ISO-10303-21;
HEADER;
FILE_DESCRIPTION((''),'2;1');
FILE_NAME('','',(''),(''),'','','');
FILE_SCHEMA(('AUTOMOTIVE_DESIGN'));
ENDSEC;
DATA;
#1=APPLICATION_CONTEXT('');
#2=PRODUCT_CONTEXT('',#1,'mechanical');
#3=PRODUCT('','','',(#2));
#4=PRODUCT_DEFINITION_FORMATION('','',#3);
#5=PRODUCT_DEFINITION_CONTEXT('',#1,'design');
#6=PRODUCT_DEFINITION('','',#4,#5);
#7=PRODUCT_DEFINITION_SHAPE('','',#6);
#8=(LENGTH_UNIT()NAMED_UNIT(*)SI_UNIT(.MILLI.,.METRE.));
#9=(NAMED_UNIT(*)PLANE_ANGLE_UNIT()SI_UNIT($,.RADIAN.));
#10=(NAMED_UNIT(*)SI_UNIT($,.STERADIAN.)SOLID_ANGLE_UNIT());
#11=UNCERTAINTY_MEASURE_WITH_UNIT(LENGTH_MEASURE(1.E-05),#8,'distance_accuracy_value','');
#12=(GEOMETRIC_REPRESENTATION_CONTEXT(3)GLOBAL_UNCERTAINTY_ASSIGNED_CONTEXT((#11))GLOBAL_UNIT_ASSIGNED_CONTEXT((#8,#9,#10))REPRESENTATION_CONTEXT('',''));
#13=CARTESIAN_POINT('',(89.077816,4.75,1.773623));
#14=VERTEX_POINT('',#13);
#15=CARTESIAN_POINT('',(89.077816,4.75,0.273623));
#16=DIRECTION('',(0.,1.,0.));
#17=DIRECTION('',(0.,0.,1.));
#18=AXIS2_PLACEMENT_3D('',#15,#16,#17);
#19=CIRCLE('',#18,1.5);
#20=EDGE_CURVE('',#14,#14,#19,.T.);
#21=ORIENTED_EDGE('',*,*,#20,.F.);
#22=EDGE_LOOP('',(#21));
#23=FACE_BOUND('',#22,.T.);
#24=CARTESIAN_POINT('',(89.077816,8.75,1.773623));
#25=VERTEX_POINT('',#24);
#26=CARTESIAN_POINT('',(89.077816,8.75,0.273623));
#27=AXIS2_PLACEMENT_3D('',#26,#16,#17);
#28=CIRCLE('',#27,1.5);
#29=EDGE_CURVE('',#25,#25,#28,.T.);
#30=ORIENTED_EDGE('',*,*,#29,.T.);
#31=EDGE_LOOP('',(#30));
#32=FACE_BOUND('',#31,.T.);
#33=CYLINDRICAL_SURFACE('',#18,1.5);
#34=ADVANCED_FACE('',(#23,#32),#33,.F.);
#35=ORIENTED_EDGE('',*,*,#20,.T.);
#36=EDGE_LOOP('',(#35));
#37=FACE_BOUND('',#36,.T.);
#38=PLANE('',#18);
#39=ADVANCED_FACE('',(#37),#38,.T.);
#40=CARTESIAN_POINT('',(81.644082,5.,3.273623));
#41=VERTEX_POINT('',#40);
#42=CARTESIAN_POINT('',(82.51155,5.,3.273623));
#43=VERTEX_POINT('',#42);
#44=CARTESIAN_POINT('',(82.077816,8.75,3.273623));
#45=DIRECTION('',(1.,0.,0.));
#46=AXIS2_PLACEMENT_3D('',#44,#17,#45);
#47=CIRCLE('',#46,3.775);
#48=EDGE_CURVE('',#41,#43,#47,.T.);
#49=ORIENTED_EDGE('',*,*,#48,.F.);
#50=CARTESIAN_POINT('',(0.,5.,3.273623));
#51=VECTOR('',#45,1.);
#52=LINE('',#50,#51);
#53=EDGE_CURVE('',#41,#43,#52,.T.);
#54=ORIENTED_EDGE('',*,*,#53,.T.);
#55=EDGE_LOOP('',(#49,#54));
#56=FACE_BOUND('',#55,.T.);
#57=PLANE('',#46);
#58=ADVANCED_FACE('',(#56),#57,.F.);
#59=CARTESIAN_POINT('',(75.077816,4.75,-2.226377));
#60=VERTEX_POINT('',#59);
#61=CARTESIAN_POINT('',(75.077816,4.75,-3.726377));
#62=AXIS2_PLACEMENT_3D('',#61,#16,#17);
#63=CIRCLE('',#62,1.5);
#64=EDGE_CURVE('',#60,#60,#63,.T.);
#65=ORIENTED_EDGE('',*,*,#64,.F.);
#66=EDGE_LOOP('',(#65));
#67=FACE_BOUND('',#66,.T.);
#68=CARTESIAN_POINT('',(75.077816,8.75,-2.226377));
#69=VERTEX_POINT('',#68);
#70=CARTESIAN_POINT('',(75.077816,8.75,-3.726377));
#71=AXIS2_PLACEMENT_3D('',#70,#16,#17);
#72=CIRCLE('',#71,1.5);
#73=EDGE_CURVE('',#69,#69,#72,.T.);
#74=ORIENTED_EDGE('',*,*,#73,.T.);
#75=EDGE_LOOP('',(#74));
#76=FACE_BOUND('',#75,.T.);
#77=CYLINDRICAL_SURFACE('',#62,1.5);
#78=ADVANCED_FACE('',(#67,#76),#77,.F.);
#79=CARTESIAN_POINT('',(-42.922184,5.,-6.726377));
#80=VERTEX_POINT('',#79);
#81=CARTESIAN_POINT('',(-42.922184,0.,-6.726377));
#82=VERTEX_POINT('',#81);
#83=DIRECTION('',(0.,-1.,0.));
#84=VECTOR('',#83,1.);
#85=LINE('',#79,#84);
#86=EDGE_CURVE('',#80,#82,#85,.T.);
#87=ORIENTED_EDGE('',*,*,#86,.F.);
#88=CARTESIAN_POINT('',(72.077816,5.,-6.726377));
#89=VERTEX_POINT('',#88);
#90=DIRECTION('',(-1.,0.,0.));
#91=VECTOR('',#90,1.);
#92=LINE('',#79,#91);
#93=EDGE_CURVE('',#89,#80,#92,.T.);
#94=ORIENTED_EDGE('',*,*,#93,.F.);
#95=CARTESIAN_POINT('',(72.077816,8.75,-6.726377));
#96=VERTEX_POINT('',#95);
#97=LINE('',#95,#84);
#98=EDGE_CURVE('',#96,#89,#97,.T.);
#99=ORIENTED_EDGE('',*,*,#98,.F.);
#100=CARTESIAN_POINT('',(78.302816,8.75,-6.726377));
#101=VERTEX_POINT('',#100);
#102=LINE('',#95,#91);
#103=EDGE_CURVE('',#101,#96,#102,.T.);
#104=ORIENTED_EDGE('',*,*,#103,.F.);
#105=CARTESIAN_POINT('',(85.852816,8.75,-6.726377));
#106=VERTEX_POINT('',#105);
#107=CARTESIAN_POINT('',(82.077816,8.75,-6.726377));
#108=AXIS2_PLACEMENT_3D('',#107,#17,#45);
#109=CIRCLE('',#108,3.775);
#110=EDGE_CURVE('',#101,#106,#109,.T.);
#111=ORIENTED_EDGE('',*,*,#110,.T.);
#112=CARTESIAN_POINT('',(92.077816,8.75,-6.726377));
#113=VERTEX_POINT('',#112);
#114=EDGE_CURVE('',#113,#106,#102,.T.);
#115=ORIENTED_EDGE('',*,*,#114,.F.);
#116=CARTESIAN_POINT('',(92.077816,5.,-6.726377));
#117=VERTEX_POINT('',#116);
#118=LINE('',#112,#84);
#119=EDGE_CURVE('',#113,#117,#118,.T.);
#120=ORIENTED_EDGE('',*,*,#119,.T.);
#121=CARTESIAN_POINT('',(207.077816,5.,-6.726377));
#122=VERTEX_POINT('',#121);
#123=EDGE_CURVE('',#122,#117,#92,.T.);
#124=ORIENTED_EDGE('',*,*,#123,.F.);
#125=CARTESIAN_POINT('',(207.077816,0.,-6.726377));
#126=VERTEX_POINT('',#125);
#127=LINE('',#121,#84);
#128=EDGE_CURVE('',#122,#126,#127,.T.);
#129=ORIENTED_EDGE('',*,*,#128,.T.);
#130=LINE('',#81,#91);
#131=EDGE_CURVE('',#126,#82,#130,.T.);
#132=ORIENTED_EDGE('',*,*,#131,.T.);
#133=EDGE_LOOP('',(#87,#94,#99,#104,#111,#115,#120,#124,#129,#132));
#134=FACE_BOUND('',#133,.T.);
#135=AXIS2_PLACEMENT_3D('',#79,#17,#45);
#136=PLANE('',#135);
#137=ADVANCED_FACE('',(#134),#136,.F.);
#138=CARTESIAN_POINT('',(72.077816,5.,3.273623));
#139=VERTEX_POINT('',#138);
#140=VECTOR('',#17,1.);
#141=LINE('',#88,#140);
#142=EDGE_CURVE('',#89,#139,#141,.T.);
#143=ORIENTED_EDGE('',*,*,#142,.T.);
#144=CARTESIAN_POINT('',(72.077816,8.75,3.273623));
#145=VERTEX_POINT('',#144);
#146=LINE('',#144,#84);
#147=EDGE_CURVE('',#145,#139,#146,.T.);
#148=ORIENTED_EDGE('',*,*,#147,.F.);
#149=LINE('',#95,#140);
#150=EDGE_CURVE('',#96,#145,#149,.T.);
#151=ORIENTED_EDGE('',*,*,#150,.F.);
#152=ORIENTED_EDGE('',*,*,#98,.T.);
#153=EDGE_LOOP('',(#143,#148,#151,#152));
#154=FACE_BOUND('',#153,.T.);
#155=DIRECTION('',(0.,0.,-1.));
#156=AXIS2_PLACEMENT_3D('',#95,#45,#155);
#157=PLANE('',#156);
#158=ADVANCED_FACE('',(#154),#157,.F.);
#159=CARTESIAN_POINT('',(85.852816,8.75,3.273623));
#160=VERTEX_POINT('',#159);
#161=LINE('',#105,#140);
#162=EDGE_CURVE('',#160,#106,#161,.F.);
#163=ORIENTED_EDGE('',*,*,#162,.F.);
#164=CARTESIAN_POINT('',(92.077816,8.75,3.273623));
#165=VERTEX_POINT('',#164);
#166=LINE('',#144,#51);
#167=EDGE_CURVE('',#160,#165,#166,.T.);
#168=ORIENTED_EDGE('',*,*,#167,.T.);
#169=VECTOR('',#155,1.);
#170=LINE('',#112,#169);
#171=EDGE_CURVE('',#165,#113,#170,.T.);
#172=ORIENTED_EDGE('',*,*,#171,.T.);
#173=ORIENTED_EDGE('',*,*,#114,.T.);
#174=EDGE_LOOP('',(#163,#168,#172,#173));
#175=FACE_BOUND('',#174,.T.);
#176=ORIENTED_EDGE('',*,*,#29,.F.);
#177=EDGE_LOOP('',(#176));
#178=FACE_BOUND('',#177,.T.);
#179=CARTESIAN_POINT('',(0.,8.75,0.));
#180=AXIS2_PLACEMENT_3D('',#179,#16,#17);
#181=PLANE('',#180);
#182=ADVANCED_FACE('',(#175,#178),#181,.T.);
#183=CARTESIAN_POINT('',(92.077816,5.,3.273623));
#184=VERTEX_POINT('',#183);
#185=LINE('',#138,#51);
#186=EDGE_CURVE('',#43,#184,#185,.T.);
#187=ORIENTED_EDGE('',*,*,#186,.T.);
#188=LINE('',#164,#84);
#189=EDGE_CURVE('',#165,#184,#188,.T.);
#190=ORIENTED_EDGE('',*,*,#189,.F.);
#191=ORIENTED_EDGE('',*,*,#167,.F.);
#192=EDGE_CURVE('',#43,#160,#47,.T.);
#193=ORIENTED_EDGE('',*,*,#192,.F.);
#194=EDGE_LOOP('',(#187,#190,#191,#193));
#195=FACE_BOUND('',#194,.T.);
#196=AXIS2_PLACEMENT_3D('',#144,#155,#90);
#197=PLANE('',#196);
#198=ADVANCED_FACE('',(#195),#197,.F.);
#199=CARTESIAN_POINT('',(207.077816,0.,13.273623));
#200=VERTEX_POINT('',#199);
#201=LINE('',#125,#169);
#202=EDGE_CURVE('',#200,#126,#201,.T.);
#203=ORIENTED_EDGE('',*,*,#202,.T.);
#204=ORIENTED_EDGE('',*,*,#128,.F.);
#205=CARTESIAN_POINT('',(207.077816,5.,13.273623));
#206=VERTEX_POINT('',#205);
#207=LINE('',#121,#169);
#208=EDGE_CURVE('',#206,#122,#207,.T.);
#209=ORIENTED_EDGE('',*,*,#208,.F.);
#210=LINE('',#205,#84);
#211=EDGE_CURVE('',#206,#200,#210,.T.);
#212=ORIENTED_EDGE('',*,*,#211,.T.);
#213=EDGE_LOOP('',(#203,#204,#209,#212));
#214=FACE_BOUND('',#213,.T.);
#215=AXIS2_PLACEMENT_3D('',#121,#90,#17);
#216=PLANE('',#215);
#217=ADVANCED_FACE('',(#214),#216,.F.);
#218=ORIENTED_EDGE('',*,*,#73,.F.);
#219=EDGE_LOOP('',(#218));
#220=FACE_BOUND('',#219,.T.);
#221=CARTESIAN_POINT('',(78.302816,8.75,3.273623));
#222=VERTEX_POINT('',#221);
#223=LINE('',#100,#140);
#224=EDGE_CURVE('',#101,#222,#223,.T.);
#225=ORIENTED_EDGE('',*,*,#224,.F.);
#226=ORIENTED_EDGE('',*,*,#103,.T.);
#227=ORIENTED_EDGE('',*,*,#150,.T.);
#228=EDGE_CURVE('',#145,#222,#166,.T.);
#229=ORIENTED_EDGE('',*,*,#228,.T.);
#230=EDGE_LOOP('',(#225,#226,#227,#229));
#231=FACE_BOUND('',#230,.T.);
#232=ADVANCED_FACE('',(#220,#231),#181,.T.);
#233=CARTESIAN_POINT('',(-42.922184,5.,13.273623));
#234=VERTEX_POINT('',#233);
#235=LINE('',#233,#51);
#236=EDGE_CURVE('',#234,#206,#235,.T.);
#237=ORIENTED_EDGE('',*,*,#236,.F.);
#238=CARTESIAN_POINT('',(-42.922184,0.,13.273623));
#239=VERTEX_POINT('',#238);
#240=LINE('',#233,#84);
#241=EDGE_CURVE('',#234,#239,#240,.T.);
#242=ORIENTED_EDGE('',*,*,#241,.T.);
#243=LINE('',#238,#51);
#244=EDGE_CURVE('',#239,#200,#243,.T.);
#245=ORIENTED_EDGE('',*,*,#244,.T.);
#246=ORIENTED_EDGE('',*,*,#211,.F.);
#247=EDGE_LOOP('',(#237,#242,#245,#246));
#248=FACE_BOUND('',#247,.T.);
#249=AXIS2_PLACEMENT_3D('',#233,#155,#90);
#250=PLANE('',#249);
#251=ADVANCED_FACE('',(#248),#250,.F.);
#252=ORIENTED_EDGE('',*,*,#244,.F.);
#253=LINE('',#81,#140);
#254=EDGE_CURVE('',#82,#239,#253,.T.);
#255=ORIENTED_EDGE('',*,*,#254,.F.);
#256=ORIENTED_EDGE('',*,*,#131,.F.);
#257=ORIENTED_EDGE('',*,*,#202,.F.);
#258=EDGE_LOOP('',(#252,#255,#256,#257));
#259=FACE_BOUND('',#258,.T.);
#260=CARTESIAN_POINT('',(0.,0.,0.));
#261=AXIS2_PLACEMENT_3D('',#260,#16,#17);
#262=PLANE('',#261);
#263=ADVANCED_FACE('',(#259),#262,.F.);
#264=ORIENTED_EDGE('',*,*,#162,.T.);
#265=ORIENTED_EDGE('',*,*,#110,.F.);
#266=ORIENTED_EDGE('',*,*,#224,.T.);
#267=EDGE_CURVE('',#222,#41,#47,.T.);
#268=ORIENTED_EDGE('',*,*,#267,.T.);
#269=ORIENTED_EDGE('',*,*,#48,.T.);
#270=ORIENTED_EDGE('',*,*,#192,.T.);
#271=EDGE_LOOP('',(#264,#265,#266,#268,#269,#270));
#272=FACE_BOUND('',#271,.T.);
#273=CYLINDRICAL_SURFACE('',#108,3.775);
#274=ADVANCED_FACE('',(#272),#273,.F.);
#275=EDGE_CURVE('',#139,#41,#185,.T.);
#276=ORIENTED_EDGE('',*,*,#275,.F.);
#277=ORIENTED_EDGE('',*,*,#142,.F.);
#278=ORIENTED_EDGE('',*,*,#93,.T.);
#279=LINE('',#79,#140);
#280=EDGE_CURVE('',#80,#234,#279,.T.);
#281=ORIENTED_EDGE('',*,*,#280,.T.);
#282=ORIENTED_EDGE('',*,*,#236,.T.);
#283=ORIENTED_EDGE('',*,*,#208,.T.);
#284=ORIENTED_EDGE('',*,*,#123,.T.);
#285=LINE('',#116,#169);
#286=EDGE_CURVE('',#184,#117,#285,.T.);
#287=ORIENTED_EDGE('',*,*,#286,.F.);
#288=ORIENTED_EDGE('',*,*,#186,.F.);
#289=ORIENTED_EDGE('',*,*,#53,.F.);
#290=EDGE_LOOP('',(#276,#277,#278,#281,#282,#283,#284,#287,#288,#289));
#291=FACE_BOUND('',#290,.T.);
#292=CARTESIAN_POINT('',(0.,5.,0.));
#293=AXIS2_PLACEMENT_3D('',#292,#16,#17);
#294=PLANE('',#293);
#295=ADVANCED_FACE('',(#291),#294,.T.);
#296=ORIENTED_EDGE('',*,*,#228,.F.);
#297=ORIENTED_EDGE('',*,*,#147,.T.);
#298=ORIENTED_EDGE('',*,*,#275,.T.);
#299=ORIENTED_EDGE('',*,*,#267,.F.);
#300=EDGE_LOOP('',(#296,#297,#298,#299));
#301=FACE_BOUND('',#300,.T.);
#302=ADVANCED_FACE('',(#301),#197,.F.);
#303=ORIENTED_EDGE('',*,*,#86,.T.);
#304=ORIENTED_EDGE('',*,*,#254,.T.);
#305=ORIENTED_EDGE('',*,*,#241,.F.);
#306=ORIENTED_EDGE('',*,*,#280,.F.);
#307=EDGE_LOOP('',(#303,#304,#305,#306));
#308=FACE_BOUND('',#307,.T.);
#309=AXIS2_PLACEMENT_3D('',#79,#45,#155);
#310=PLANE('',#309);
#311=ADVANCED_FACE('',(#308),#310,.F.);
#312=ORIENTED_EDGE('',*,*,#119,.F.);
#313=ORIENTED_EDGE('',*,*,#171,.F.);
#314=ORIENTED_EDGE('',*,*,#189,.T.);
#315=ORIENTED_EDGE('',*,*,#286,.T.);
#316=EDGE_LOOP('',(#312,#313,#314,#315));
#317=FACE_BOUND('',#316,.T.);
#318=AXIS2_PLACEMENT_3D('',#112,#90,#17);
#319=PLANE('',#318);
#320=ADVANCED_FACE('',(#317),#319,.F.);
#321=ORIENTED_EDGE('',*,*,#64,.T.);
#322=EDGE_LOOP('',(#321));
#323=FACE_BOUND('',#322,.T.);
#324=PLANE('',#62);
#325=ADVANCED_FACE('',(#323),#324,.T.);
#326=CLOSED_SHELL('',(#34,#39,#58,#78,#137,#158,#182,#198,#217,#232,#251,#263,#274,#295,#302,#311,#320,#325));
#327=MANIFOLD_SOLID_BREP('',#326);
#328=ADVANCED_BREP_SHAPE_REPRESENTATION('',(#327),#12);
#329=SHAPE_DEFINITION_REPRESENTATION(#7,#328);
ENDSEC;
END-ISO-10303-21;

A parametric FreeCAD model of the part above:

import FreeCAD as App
import Part
import Sketcher
from FreeCAD import Vector

doc = App.newDocument("Part")
body = doc.addObject("PartDesign::Body", "Body")

# Sketch on XZ plane
sketch1 = body.newObject("Sketcher::SketchObject", "Sketch")
sketch1.AttachmentSupport = (doc.getObject("XZ_Plane"), [""])
sketch1.MapMode = "FlatFace"
sketch1.addGeometry([
    Part.LineSegment(Vector(-43, -7, 0), Vector(-43, 13, 0)),
    Part.LineSegment(Vector(-43, 13, 0), Vector(207, 13, 0)),
    Part.LineSegment(Vector(207, 13, 0), Vector(207, -7, 0)),
    Part.LineSegment(Vector(207, -7, 0), Vector(-43, -7, 0)),
], False)
sketch1.addConstraint([
    Sketcher.Constraint("Coincident", 0, 2, 1, 1),
    Sketcher.Constraint("Coincident", 1, 2, 2, 1),
    Sketcher.Constraint("Coincident", 2, 2, 3, 1),
    Sketcher.Constraint("Coincident", 3, 2, 0, 1),
    Sketcher.Constraint("Vertical", 0),
    Sketcher.Constraint("Horizontal", 1),
    Sketcher.Constraint("Vertical", 2),
    Sketcher.Constraint("Horizontal", 3),
    Sketcher.Constraint("DistanceX", 1, 1, 1, 2, 250.0),
    Sketcher.Constraint("DistanceY", 0, 1, 0, 2, 20.0),
    Sketcher.Constraint("DistanceX", 0, 2, -1, 1, 42.922184),
    Sketcher.Constraint("DistanceY", -1, 1, 0, 2, 13.273623),
])
pad1 = body.newObject("PartDesign::Pad", "Pad")
pad1.Profile = sketch1
pad1.Length = 5
pad1.Reversed = True

# Sketch on XZ plane
sketch2 = body.newObject("Sketcher::SketchObject", "Sketch001")
sketch2.AttachmentSupport = (doc.getObject("XZ_Plane"), [""])
sketch2.MapMode = "FlatFace"
sketch2.AttachmentOffset = App.Placement(Vector(0, 0, -5), App.Rotation())
sketch2.addGeometry([
    Part.LineSegment(Vector(72, -7, 0), Vector(72, 3, 0)),
    Part.LineSegment(Vector(72, 3, 0), Vector(92, 3, 0)),
    Part.LineSegment(Vector(92, 3, 0), Vector(92, -7, 0)),
    Part.LineSegment(Vector(92, -7, 0), Vector(72, -7, 0)),
], False)
sketch2.addConstraint([
    Sketcher.Constraint("Coincident", 0, 2, 1, 1),
    Sketcher.Constraint("Coincident", 1, 2, 2, 1),
    Sketcher.Constraint("Coincident", 2, 2, 3, 1),
    Sketcher.Constraint("Coincident", 3, 2, 0, 1),
    Sketcher.Constraint("Vertical", 0),
    Sketcher.Constraint("Horizontal", 1),
    Sketcher.Constraint("Vertical", 2),
    Sketcher.Constraint("Horizontal", 3),
    Sketcher.Constraint("DistanceX", 1, 1, 1, 2, 20.0),
    Sketcher.Constraint("DistanceY", 0, 1, 0, 2, 10.0),
    Sketcher.Constraint("DistanceX", -1, 1, 0, 2, 72.077816),
    Sketcher.Constraint("DistanceY", -1, 1, 0, 2, 3.273623),
])
pad2 = body.newObject("PartDesign::Pad", "Pad001")
pad2.Profile = sketch2
pad2.Length = 3.75
pad2.Reversed = True

# Sketch on XY plane
sketch3 = body.newObject("Sketcher::SketchObject", "Sketch002")
sketch3.AttachmentSupport = (doc.getObject("XY_Plane"), [""])
sketch3.MapMode = "FlatFace"
sketch3.AttachmentOffset = App.Placement(Vector(0, 0, 3.273623), App.Rotation())
sketch3.addGeometry(Part.Circle(Vector(82.1, 8.8, 0), Vector(0, 0, 1), 3.8), False)
sketch3.addConstraint([
    Sketcher.Constraint("Diameter", 0, 7.55),
    Sketcher.Constraint("DistanceY", -1, 1, 0, 3, 8.75),
    Sketcher.Constraint("DistanceX", -1, 1, 0, 3, 82.077816),
])
pocket1 = body.newObject("PartDesign::Pocket", "Pocket")
pocket1.Profile = sketch3
pocket1.Length = 10

# Sketch on XZ plane
sketch4 = body.newObject("Sketcher::SketchObject", "Sketch003")
sketch4.AttachmentSupport = (doc.getObject("XZ_Plane"), [""])
sketch4.MapMode = "FlatFace"
sketch4.AttachmentOffset = App.Placement(Vector(0, 0, -8.75), App.Rotation())
sketch4.addGeometry([
    Part.Circle(Vector(89.1, 0.3, 0), Vector(0, 0, 1), 1.5),
    Part.Circle(Vector(75.1, -3.7, 0), Vector(0, 0, 1), 1.5),
], False)
sketch4.addConstraint([
    Sketcher.Constraint("Equal", 0, 1),
    Sketcher.Constraint("Diameter", 0, 3.0),
    Sketcher.Constraint("DistanceX", 1, 3, 0, 3, 14.0),
    Sketcher.Constraint("DistanceY", 1, 3, 0, 3, 4.0),
    Sketcher.Constraint("DistanceX", -1, 1, 0, 3, 89.077816),
    Sketcher.Constraint("DistanceY", -1, 1, 0, 3, 0.273623),
])
pocket2 = body.newObject("PartDesign::Pocket", "Pocket001")
pocket2.Profile = sketch4
pocket2.Length = 4
pocket2.Reversed = True

doc.recompute()
